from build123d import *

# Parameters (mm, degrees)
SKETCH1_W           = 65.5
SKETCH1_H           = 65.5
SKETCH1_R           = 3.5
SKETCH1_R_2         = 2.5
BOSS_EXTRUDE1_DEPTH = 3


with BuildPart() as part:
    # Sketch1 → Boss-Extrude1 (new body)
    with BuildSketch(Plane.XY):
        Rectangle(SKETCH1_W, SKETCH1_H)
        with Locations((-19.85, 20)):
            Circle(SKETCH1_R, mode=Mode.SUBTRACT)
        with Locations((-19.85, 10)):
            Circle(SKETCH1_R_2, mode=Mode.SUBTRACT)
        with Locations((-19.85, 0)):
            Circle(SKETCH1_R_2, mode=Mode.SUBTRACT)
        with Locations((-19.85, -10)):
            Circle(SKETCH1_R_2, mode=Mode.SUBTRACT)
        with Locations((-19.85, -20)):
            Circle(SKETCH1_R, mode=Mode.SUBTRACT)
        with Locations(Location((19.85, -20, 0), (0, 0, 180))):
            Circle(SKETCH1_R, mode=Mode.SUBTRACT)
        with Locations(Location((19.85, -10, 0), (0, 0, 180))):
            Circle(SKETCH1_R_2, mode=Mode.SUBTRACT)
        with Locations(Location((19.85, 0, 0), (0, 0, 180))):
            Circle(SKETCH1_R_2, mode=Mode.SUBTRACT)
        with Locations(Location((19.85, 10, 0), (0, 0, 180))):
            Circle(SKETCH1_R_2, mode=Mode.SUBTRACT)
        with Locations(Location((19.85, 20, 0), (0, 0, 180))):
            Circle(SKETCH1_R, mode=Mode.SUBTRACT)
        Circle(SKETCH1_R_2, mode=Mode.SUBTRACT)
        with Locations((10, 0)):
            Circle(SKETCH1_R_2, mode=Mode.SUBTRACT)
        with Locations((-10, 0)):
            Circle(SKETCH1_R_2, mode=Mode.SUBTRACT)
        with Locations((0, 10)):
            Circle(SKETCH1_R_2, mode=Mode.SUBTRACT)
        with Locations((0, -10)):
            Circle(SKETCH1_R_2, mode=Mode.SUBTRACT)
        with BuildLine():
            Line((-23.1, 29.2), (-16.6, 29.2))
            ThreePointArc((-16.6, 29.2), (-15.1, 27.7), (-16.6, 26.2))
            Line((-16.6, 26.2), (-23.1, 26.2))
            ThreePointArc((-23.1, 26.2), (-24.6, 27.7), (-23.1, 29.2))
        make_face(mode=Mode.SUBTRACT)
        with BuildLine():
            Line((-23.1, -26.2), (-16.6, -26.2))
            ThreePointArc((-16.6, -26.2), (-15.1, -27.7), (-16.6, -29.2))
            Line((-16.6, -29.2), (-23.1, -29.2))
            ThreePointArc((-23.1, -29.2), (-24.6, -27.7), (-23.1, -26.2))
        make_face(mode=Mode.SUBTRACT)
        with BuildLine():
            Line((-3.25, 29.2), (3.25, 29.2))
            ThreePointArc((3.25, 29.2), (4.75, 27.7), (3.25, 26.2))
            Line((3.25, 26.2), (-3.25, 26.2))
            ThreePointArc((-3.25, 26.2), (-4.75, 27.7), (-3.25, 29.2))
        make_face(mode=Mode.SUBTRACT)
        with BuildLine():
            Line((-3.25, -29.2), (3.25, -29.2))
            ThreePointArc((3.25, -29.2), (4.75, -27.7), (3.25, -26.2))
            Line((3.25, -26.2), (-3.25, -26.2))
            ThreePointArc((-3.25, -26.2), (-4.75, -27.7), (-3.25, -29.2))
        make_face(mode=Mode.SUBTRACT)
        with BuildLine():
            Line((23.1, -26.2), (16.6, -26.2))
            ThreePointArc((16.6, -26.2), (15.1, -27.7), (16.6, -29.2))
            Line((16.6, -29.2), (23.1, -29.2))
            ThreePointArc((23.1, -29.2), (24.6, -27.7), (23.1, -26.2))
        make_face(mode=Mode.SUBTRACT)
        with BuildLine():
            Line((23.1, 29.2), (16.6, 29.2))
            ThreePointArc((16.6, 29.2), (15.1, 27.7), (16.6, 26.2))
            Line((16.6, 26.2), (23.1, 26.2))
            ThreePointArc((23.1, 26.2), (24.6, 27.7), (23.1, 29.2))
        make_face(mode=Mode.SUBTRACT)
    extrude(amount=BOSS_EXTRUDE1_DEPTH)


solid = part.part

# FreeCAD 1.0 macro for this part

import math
import FreeCAD as App
import Part
import Sketcher
Q = App.Units.Quantity


def add_polygon(sketch, points):
    """Adds a closed chain of lines whose ends are joined by coincident constraints."""
    first, n = sketch.GeometryCount, len(points)
    for a, b in zip(points, points[1:] + points[:1]):
        sketch.addGeometry(Part.LineSegment(App.Vector(*a, 0), App.Vector(*b, 0)), False)
    for i in range(n):
        sketch.addConstraint(Sketcher.Constraint("Coincident", first + i, 2, first + (i + 1) % n, 1))

doc = App.newDocument("Part")
body = doc.addObject("PartDesign::Body", "Body")

sketch1 = doc.addObject("Sketcher::SketchObject", "Sketch")
body.addObject(sketch1)
sketch1.AttachmentSupport = (doc.XY_Plane, [""])
sketch1.MapMode = "FlatFace"
add_polygon(sketch1, [(-32.8, 32.8), (-32.8, -32.8), (32.8, -32.8), (32.8, 32.8)])
sketch1.addGeometry(Part.ArcOfCircle(Part.Circle(App.Vector(-23.1, -27.7, 0), App.Vector(0, 0, 1), 1.5), math.radians(90), math.radians(270)), False)
sketch1.addGeometry(Part.LineSegment(App.Vector(-23.1, -26.2, 0), App.Vector(-16.6, -26.2, 0)), False)
sketch1.addGeometry(Part.ArcOfCircle(Part.Circle(App.Vector(-16.6, -27.7, 0), App.Vector(0, 0, 1), 1.5), math.radians(-90), math.radians(90)), False)
sketch1.addGeometry(Part.LineSegment(App.Vector(-16.6, -29.2, 0), App.Vector(-23.1, -29.2, 0)), False)
sketch1.addGeometry(Part.Circle(App.Vector(-19.9, -20, 0), App.Vector(0, 0, 1), 3.5), False)
sketch1.addGeometry(Part.Circle(App.Vector(-19.9, -10, 0), App.Vector(0, 0, 1), 2.5), False)
sketch1.addGeometry(Part.Circle(App.Vector(-19.9, 0, 0), App.Vector(0, 0, 1), 2.5), False)
sketch1.addGeometry(Part.Circle(App.Vector(-10, 0, 0), App.Vector(0, 0, 1), 2.5), False)
sketch1.addGeometry(Part.LineSegment(App.Vector(3.2, -29.2, 0), App.Vector(-3.2, -29.2, 0)), False)
sketch1.addGeometry(Part.ArcOfCircle(Part.Circle(App.Vector(-3.2, -27.7, 0), App.Vector(0, 0, 1), 1.5), math.radians(90), math.radians(270)), False)
sketch1.addGeometry(Part.LineSegment(App.Vector(-3.2, -26.2, 0), App.Vector(3.2, -26.2, 0)), False)
sketch1.addGeometry(Part.ArcOfCircle(Part.Circle(App.Vector(3.2, -27.7, 0), App.Vector(0, 0, 1), 1.5), math.radians(-90), math.radians(90)), False)
sketch1.addGeometry(Part.LineSegment(App.Vector(16.6, -26.2, 0), App.Vector(23.1, -26.2, 0)), False)
sketch1.addGeometry(Part.ArcOfCircle(Part.Circle(App.Vector(23.1, -27.7, 0), App.Vector(0, 0, 1), 1.5), math.radians(-90), math.radians(90)), False)
sketch1.addGeometry(Part.LineSegment(App.Vector(23.1, -29.2, 0), App.Vector(16.6, -29.2, 0)), False)
sketch1.addGeometry(Part.ArcOfCircle(Part.Circle(App.Vector(16.6, -27.7, 0), App.Vector(0, 0, 1), 1.5), math.radians(90), math.radians(270)), False)
sketch1.addGeometry(Part.Circle(App.Vector(19.9, -20, 0), App.Vector(0, 0, 1), 3.5), False)
sketch1.addGeometry(Part.Circle(App.Vector(0, -10, 0), App.Vector(0, 0, 1), 2.5), False)
sketch1.addGeometry(Part.Circle(App.Vector(0, 0, 0), App.Vector(0, 0, 1), 2.5), False)
sketch1.addGeometry(Part.Circle(App.Vector(10, 0, 0), App.Vector(0, 0, 1), 2.5), False)
sketch1.addGeometry(Part.Circle(App.Vector(19.9, -10, 0), App.Vector(0, 0, 1), 2.5), False)
sketch1.addGeometry(Part.Circle(App.Vector(19.9, 0, 0), App.Vector(0, 0, 1), 2.5), False)
sketch1.addGeometry(Part.Circle(App.Vector(-19.9, 10, 0), App.Vector(0, 0, 1), 2.5), False)
sketch1.addGeometry(Part.Circle(App.Vector(-19.9, 20, 0), App.Vector(0, 0, 1), 3.5), False)
sketch1.addGeometry(Part.ArcOfCircle(Part.Circle(App.Vector(-23.1, 27.7, 0), App.Vector(0, 0, 1), 1.5), math.radians(90), math.radians(270)), False)
sketch1.addGeometry(Part.LineSegment(App.Vector(-23.1, 29.2, 0), App.Vector(-16.6, 29.2, 0)), False)
sketch1.addGeometry(Part.ArcOfCircle(Part.Circle(App.Vector(-16.6, 27.7, 0), App.Vector(0, 0, 1), 1.5), math.radians(-90), math.radians(90)), False)
sketch1.addGeometry(Part.LineSegment(App.Vector(-16.6, 26.2, 0), App.Vector(-23.1, 26.2, 0)), False)
sketch1.addGeometry(Part.Circle(App.Vector(0, 10, 0), App.Vector(0, 0, 1), 2.5), False)
sketch1.addGeometry(Part.Circle(App.Vector(19.9, 10, 0), App.Vector(0, 0, 1), 2.5), False)
sketch1.addGeometry(Part.ArcOfCircle(Part.Circle(App.Vector(-3.2, 27.7, 0), App.Vector(0, 0, 1), 1.5), math.radians(90), math.radians(270)), False)
sketch1.addGeometry(Part.LineSegment(App.Vector(-3.2, 29.2, 0), App.Vector(3.2, 29.2, 0)), False)
sketch1.addGeometry(Part.ArcOfCircle(Part.Circle(App.Vector(3.2, 27.7, 0), App.Vector(0, 0, 1), 1.5), math.radians(-90), math.radians(90)), False)
sketch1.addGeometry(Part.LineSegment(App.Vector(3.2, 26.2, 0), App.Vector(-3.2, 26.2, 0)), False)
sketch1.addGeometry(Part.Circle(App.Vector(19.9, 20, 0), App.Vector(0, 0, 1), 3.5), False)
sketch1.addGeometry(Part.LineSegment(App.Vector(16.6, 29.2, 0), App.Vector(23.1, 29.2, 0)), False)
sketch1.addGeometry(Part.ArcOfCircle(Part.Circle(App.Vector(23.1, 27.7, 0), App.Vector(0, 0, 1), 1.5), math.radians(-90), math.radians(90)), False)
sketch1.addGeometry(Part.LineSegment(App.Vector(23.1, 26.2, 0), App.Vector(16.6, 26.2, 0)), False)
sketch1.addGeometry(Part.ArcOfCircle(Part.Circle(App.Vector(16.6, 27.7, 0), App.Vector(0, 0, 1), 1.5), math.radians(90), math.radians(270)), False)
sketch1.addConstraint([
    Sketcher.Constraint("Tangent", 4, 1, 5, 1),
    Sketcher.Constraint("Tangent", 5, 2, 6, 2),
    Sketcher.Constraint("Tangent", 6, 1, 7, 1),
    Sketcher.Constraint("Tangent", 7, 2, 4, 2),
    Sketcher.Constraint("Tangent", 12, 2, 13, 2),
    Sketcher.Constraint("Tangent", 13, 1, 14, 1),
    Sketcher.Constraint("Tangent", 14, 2, 15, 2),
    Sketcher.Constraint("Tangent", 15, 1, 12, 1),
    Sketcher.Constraint("Tangent", 16, 2, 17, 2),
    Sketcher.Constraint("Tangent", 17, 1, 18, 1),
    Sketcher.Constraint("Tangent", 18, 2, 19, 2),
    Sketcher.Constraint("Tangent", 19, 1, 16, 1),
    Sketcher.Constraint("Tangent", 28, 1, 29, 1),
    Sketcher.Constraint("Tangent", 29, 2, 30, 2),
    Sketcher.Constraint("Tangent", 30, 1, 31, 1),
    Sketcher.Constraint("Tangent", 31, 2, 28, 2),
    Sketcher.Constraint("Tangent", 34, 1, 35, 1),
    Sketcher.Constraint("Tangent", 35, 2, 36, 2),
    Sketcher.Constraint("Tangent", 36, 1, 37, 1),
    Sketcher.Constraint("Tangent", 37, 2, 34, 2),
    Sketcher.Constraint("Tangent", 39, 2, 40, 2),
    Sketcher.Constraint("Tangent", 40, 1, 41, 1),
    Sketcher.Constraint("Tangent", 41, 2, 42, 2),
    Sketcher.Constraint("Tangent", 42, 1, 39, 1),
    Sketcher.Constraint("Vertical", 0),
    Sketcher.Constraint("Horizontal", 1),
    Sketcher.Constraint("Vertical", 2),
    Sketcher.Constraint("Horizontal", 3),
    Sketcher.Constraint("Horizontal", 5),
    Sketcher.Constraint("Horizontal", 7),
    Sketcher.Constraint("Horizontal", 12),
    Sketcher.Constraint("Horizontal", 14),
    Sketcher.Constraint("Horizontal", 16),
    Sketcher.Constraint("Horizontal", 18),
    Sketcher.Constraint("Horizontal", 29),
    Sketcher.Constraint("Horizontal", 31),
    Sketcher.Constraint("Horizontal", 35),
    Sketcher.Constraint("Horizontal", 37),
    Sketcher.Constraint("Horizontal", 39),
    Sketcher.Constraint("Horizontal", 41),
    Sketcher.Constraint("Coincident", 22, 3, -1, 1),
    Sketcher.Constraint("Equal", 9, 10),
    Sketcher.Constraint("Equal", 10, 11),
    Sketcher.Constraint("Equal", 6, 13),
    Sketcher.Constraint("Equal", 15, 17),
    Sketcher.Constraint("Equal", 8, 20),
    Sketcher.Constraint("Equal", 11, 21),
    Sketcher.Constraint("Equal", 21, 22),
    Sketcher.Constraint("Equal", 22, 23),
    Sketcher.Constraint("Equal", 23, 24),
    Sketcher.Constraint("Equal", 24, 25),
    Sketcher.Constraint("Equal", 25, 26),
    Sketcher.Constraint("Equal", 20, 27),
    Sketcher.Constraint("Equal", 19, 28),
    Sketcher.Constraint("Equal", 26, 32),
    Sketcher.Constraint("Equal", 32, 33),
    Sketcher.Constraint("Equal", 30, 34),
    Sketcher.Constraint("Equal", 27, 38),
    Sketcher.Constraint("Equal", 36, 40),
    Sketcher.Constraint("Symmetric", 11, 3, 23, 3, -1, 1),
    Sketcher.Constraint("Symmetric", 10, 3, 25, 3, -1, 1),
    Sketcher.Constraint("Symmetric", 24, 3, 26, 3, -1, 1),
    Sketcher.Constraint("Symmetric", 20, 3, 27, 3, -1, 1),
    Sketcher.Constraint("Symmetric", 17, 3, 28, 3, -1, 1),
    Sketcher.Constraint("Symmetric", 21, 3, 32, 3, -1, 1),
    Sketcher.Constraint("Symmetric", 9, 3, 33, 3, -1, 1),
    Sketcher.Constraint("Symmetric", 15, 3, 34, 3, -1, 1),
    Sketcher.Constraint("Symmetric", 8, 3, 38, 3, -1, 1),
    Sketcher.Constraint("Symmetric", 4, 3, 40, 3, -1, 1),
    Sketcher.Constraint("Symmetric", 0, 2, 2, 2, -1, 1),
    Sketcher.Constraint("Symmetric", 4, 3, 17, 3, -2),
    Sketcher.Constraint("Symmetric", 8, 3, 20, 3, -2),
    Sketcher.Constraint("Symmetric", 9, 3, 24, 3, -2),
    Sketcher.Constraint("PointOnObject", 10, 3, -1),
    Sketcher.Constraint("PointOnObject", 11, 3, -1),
    Sketcher.Constraint("PointOnObject", 21, 3, -2),
    Sketcher.Constraint("Horizontal", 6, 3, 13, 3),
    Sketcher.Constraint("Horizontal", 9, 3, 21, 3),
    Sketcher.Constraint("Vertical", 8, 3, 9, 3),
    Sketcher.Constraint("Vertical", 9, 3, 10, 3),
    Sketcher.Constraint("Vertical", 6, 3, 30, 3),
    Sketcher.Constraint("Vertical", 13, 3, 34, 3),
    Sketcher.Constraint("Vertical", 15, 3, 36, 3),
    Sketcher.Constraint("Vertical", 19, 3, 42, 3),
    Sketcher.Constraint("Equal", 7, 12),
    Sketcher.Constraint("Equal", 14, 16),
    Sketcher.Constraint("Equal", 3, 0),
    Sketcher.Constraint("Diameter", 8, Q("7 mm")),
    Sketcher.Constraint("Diameter", 9, Q("5 mm")),
    Sketcher.Constraint("Radius", 4, Q("1.5 mm")),
    Sketcher.Constraint("DistanceX", 1, 1, 1, 2, Q("65.5 mm")),
    Sketcher.Constraint("DistanceX", 5, 1, 5, 2, Q("6.5 mm")),
    Sketcher.Constraint("DistanceY", 8, 3, -1, 1, Q("20 mm")),
    Sketcher.Constraint("DistanceY", 9, 3, -1, 1, Q("10 mm")),
    Sketcher.Constraint("DistanceX", 11, 3, -1, 1, Q("10 mm")),
    Sketcher.Constraint("DistanceX", 4, 3, -1, 1, Q("23.1 mm")),
    Sketcher.Constraint("DistanceY", 4, 3, -1, 1, Q("27.7 mm")),
    Sketcher.Constraint("DistanceX", 8, 3, 13, 3, Q("16.6 mm")),
])
pad1 = doc.addObject("PartDesign::Pad", "Pad")
body.addObject(pad1)
pad1.Profile = sketch1
pad1.Length = 3

doc.recompute()
